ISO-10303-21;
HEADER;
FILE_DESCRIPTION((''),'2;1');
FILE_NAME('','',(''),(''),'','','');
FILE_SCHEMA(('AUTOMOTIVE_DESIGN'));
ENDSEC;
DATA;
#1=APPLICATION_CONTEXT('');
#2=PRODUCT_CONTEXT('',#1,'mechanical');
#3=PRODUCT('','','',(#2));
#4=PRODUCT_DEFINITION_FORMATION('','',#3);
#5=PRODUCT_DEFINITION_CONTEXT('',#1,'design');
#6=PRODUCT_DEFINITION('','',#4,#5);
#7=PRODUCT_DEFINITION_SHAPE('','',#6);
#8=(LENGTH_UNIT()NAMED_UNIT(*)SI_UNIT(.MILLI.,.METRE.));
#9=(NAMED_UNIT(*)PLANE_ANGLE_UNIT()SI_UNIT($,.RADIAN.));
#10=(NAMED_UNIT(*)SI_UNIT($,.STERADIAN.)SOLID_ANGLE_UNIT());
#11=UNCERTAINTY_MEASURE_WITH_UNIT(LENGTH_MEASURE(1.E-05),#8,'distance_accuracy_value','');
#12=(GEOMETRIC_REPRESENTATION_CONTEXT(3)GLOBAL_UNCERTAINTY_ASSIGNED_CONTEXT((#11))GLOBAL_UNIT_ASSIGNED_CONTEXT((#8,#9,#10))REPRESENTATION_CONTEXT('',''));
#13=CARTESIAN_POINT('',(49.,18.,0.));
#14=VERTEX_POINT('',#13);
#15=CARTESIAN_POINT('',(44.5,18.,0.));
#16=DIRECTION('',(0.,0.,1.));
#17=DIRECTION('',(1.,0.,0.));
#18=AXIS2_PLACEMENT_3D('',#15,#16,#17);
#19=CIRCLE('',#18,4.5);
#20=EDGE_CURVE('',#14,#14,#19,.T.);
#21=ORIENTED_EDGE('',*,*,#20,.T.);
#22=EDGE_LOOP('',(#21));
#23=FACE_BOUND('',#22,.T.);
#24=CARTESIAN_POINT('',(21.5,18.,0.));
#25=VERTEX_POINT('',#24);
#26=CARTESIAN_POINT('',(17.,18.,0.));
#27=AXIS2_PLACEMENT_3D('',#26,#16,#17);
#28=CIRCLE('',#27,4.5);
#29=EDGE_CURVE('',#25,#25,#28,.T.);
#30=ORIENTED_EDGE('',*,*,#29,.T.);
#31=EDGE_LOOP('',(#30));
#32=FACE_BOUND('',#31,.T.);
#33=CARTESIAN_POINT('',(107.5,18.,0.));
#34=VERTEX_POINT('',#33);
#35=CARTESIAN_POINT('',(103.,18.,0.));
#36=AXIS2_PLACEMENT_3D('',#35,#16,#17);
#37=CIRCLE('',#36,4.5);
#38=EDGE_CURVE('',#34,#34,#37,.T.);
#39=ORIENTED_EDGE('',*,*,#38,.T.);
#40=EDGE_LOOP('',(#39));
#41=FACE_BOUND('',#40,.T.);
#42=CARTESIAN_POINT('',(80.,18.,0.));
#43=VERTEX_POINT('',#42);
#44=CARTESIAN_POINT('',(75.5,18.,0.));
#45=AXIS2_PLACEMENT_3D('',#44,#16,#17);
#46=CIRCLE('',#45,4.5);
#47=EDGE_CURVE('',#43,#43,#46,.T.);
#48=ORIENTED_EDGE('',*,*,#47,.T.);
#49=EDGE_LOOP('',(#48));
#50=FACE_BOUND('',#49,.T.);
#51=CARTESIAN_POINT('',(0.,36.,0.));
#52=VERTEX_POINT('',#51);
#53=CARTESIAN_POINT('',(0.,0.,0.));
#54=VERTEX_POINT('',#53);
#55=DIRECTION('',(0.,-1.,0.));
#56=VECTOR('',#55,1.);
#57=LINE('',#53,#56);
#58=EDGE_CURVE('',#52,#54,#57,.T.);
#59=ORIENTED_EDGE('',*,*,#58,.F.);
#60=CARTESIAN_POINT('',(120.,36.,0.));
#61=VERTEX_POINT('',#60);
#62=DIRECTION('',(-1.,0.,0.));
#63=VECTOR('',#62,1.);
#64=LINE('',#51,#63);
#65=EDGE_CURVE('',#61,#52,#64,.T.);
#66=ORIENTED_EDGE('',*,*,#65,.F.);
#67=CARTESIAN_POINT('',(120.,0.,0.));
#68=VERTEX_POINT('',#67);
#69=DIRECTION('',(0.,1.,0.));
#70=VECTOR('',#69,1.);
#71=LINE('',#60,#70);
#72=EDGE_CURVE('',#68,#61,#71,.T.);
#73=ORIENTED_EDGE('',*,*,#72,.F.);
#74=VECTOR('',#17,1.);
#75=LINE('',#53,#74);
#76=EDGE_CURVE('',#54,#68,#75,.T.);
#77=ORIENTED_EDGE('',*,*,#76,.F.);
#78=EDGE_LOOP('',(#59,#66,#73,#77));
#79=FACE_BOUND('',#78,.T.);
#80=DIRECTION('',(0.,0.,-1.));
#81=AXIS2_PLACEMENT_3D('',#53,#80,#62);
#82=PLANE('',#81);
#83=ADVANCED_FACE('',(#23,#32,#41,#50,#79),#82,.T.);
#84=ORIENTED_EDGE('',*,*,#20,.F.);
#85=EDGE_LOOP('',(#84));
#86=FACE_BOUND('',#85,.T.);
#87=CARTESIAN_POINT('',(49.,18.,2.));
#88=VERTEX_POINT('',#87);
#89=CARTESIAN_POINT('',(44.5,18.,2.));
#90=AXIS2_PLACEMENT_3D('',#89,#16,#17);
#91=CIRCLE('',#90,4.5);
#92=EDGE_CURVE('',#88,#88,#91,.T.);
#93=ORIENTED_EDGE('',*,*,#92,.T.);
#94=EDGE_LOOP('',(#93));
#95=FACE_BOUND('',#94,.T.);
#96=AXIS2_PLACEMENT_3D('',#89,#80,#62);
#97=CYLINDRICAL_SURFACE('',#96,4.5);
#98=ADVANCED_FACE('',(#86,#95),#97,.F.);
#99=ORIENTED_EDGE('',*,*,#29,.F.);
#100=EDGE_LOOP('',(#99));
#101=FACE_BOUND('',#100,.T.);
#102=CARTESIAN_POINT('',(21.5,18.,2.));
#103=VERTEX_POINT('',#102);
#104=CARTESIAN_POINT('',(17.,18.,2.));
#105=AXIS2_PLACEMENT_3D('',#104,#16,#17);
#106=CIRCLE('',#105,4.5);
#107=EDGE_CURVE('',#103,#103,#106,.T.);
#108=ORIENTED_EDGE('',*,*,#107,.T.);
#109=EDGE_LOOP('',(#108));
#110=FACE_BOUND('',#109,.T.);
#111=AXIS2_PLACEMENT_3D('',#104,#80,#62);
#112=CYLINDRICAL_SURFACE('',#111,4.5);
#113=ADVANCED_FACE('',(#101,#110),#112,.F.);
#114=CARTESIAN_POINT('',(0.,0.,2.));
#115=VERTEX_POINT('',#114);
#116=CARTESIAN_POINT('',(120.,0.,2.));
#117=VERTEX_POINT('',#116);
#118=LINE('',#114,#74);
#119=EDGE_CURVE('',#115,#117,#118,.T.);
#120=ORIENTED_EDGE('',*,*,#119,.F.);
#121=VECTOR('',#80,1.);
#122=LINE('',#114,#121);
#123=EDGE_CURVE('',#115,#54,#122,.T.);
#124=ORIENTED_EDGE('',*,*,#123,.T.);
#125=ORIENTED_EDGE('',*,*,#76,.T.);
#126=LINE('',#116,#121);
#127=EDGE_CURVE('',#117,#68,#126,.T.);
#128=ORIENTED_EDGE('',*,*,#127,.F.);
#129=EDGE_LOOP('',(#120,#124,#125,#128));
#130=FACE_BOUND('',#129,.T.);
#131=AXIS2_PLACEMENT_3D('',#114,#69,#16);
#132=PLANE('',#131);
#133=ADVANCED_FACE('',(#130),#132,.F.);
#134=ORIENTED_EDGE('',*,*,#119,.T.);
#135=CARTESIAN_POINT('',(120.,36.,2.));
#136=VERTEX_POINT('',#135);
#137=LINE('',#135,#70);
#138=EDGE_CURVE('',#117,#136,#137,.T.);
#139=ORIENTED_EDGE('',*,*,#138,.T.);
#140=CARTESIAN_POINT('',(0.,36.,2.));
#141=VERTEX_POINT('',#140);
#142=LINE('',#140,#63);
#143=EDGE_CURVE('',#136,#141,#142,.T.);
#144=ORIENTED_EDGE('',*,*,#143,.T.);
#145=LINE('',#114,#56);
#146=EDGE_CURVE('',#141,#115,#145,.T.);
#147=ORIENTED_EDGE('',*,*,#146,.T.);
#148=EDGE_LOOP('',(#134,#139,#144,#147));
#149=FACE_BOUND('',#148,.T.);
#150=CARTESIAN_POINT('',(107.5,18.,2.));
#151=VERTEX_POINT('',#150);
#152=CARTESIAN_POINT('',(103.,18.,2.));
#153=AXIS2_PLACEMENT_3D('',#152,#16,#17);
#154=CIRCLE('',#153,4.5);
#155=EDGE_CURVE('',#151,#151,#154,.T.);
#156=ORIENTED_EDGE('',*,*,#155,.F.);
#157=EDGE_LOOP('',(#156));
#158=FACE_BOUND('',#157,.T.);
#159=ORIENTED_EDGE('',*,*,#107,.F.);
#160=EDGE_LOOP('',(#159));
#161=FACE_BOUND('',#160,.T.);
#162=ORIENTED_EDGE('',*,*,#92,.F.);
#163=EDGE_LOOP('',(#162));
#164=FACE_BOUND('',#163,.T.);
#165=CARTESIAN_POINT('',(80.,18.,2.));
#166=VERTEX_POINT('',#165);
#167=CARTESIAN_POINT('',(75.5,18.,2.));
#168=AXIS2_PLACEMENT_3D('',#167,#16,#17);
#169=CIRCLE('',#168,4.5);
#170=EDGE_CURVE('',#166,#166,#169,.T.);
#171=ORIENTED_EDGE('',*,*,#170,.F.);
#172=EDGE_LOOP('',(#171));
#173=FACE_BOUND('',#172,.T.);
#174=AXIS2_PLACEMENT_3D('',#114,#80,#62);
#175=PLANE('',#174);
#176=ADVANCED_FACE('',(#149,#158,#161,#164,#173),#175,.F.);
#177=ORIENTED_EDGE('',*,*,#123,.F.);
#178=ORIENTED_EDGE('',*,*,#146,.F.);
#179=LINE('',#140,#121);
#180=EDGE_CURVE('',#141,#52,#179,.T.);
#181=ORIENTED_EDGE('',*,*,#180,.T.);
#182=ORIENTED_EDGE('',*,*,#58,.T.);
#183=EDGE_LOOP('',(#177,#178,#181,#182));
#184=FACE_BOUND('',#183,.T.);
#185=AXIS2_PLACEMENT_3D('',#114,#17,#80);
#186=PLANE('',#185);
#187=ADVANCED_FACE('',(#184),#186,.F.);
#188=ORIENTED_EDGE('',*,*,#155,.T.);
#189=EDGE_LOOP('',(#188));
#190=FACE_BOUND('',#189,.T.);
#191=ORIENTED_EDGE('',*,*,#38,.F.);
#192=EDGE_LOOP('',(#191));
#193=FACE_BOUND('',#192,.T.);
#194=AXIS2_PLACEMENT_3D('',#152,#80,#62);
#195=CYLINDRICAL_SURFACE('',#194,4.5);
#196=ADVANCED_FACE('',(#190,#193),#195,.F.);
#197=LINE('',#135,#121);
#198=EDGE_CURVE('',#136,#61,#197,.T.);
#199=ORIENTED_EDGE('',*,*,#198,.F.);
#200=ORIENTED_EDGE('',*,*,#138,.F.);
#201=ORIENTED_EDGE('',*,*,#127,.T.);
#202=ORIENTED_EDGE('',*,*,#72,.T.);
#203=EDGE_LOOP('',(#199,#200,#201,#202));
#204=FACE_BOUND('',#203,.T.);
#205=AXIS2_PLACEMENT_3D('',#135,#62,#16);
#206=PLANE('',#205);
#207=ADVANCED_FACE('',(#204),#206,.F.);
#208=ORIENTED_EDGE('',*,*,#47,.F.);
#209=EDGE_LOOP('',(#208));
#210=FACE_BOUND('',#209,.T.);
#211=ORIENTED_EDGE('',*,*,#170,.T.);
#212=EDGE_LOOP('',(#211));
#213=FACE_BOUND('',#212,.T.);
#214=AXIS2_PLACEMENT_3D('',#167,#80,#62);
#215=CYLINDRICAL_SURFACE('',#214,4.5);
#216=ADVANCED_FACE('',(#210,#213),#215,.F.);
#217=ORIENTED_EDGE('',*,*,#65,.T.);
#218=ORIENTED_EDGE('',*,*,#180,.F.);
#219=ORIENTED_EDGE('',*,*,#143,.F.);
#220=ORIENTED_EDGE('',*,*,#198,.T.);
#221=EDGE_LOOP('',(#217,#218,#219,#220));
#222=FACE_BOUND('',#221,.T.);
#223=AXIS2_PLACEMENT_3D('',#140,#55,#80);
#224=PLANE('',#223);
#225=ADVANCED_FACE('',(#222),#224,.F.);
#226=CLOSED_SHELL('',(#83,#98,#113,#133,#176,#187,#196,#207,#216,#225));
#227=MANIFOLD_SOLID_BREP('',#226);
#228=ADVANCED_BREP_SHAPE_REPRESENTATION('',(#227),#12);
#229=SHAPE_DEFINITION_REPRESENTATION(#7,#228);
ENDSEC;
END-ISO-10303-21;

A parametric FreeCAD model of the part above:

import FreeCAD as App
import Part
import Sketcher
Q = App.Units.Quantity

doc = App.newDocument("Part")
body = doc.addObject("PartDesign::Body", "Body")

# Sketch on XY plane
sketch1 = doc.addObject("Sketcher::SketchObject", "Sketch")
body.addObject(sketch1)
sketch1.AttachmentSupport = (doc.XY_Plane, [""])
sketch1.MapMode = "FlatFace"
sketch1.addGeometry([
    Part.LineSegment(App.Vector(0, 36, 0), App.Vector(0, 0, 0)),  # 0
    Part.LineSegment(App.Vector(0, 0, 0), App.Vector(120, 0, 0)),  # 1
    Part.LineSegment(App.Vector(120, 0, 0), App.Vector(120, 36, 0)),  # 2
    Part.LineSegment(App.Vector(120, 36, 0), App.Vector(0, 36, 0)),  # 3
    Part.Circle(App.Vector(17, 18, 0), App.Vector(0, 0, 1), 4.5),  # 4
    Part.Circle(App.Vector(44.5, 18, 0), App.Vector(0, 0, 1), 4.5),  # 5
    Part.Circle(App.Vector(75.5, 18, 0), App.Vector(0, 0, 1), 4.5),  # 6
    Part.Circle(App.Vector(103, 18, 0), App.Vector(0, 0, 1), 4.5),  # 7
], False)
sketch1.addConstraint([
    Sketcher.Constraint("Coincident", 0, 2, 1, 1),
    Sketcher.Constraint("Coincident", 1, 2, 2, 1),
    Sketcher.Constraint("Coincident", 2, 2, 3, 1),
    Sketcher.Constraint("Coincident", 3, 2, 0, 1),
    Sketcher.Constraint("Vertical", 0),
    Sketcher.Constraint("Horizontal", 1),
    Sketcher.Constraint("Vertical", 2),
    Sketcher.Constraint("Horizontal", 3),
    Sketcher.Constraint("Coincident", 0, 2, -1, 1),
    Sketcher.Constraint("Equal", 4, 5),
    Sketcher.Constraint("Equal", 5, 6),
    Sketcher.Constraint("Equal", 6, 7),
    Sketcher.Constraint("Horizontal", 4, 3, 5, 3),
    Sketcher.Constraint("Horizontal", 5, 3, 6, 3),
    Sketcher.Constraint("Horizontal", 6, 3, 7, 3),
    Sketcher.Constraint("Diameter", 4, Q("9 mm")),
    Sketcher.Constraint("DistanceX", 1, 1, 1, 2, Q("120 mm")),
    Sketcher.Constraint("DistanceY", 0, 2, 0, 1, Q("36 mm")),
    Sketcher.Constraint("DistanceX", -1, 1, 4, 3, Q("17 mm")),
    Sketcher.Constraint("DistanceY", -1, 1, 4, 3, Q("18 mm")),
    Sketcher.Constraint("DistanceX", -1, 1, 7, 3, Q("103 mm")),
    Sketcher.Constraint("DistanceX", 5, 3, 6, 3, Q("31 mm")),
    Sketcher.Constraint("DistanceX", -1, 1, 5, 3, Q("44.5 mm")),
])
pad1 = doc.addObject("PartDesign::Pad", "Pad")
body.addObject(pad1)
pad1.Profile = sketch1
pad1.Length = 2

doc.recompute()
